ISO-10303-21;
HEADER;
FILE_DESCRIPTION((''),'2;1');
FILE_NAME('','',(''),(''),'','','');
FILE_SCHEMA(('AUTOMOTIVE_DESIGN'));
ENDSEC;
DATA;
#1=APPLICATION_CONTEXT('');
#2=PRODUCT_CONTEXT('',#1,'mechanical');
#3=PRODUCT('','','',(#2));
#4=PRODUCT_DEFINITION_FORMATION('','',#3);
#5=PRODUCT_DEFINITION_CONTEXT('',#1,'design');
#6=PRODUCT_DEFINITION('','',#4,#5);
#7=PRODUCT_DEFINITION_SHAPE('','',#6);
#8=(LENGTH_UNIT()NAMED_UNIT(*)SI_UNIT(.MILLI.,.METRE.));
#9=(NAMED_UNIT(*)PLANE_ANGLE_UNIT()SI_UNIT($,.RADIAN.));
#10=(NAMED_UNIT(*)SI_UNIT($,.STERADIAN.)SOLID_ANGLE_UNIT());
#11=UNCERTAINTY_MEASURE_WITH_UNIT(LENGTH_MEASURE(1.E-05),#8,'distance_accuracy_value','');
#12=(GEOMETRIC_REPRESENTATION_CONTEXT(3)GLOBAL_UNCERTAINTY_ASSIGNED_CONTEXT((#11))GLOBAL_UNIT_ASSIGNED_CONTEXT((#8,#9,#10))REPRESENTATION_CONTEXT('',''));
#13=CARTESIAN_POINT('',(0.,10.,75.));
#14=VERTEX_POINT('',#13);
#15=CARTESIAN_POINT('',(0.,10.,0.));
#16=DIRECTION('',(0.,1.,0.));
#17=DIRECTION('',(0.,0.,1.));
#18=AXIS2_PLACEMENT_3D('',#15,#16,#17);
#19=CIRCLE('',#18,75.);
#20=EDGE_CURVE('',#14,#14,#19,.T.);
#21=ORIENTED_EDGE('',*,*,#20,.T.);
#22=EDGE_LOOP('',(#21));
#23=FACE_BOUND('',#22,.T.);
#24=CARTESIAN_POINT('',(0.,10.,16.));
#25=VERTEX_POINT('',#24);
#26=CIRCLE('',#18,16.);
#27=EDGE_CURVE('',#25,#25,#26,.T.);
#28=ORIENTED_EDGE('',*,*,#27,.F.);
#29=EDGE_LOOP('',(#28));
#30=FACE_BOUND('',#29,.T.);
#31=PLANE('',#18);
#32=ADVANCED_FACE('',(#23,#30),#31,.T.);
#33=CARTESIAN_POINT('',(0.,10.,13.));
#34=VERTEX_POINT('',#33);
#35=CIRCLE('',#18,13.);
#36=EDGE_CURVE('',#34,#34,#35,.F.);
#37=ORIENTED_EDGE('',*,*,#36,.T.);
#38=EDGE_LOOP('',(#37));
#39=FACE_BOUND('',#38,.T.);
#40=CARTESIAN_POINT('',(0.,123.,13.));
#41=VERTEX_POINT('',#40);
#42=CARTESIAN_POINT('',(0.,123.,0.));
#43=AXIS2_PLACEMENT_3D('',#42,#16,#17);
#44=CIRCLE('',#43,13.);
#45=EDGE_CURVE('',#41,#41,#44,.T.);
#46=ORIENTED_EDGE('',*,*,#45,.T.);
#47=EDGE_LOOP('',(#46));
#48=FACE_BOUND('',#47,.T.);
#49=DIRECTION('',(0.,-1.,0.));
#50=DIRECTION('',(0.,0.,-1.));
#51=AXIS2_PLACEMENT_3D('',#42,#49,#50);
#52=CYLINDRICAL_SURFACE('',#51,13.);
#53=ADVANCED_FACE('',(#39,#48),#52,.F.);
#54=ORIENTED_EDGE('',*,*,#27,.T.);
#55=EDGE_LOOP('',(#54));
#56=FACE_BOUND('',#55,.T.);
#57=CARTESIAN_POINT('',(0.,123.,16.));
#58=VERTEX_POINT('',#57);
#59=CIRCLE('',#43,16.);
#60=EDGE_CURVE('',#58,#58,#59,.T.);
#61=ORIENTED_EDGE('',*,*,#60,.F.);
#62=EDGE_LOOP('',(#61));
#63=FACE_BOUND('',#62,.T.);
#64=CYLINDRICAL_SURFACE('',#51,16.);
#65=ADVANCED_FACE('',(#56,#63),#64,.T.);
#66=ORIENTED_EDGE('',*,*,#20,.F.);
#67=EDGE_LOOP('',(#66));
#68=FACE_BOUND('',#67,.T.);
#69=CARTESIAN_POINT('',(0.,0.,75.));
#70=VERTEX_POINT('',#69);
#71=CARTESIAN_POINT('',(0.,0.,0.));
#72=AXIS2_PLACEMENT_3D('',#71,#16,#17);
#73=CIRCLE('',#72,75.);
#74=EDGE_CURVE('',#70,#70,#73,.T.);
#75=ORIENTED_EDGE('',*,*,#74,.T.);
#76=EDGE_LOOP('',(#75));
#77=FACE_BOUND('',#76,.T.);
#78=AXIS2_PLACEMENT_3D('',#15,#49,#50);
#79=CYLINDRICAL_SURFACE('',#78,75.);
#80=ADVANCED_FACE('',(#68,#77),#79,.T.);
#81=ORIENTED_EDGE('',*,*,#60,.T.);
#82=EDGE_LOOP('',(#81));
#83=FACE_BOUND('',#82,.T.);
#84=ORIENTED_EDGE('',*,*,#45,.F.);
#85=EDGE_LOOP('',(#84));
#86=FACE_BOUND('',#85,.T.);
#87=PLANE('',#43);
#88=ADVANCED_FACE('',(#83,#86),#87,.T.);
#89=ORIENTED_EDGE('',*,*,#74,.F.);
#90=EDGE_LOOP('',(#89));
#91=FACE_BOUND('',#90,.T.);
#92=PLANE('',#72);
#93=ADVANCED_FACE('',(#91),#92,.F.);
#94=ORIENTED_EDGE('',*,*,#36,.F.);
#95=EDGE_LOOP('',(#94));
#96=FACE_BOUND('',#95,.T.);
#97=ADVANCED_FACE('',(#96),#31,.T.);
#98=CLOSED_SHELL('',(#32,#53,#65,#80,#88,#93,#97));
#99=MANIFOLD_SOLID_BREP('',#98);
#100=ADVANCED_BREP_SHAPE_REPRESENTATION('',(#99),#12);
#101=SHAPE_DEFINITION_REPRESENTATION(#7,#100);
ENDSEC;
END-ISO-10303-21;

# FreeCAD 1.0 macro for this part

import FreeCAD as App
import Part
import Sketcher

V = App.Vector
Q = App.Units.Quantity

doc = App.newDocument("Part")
body = doc.addObject("PartDesign::Body", "Body")

sketch1 = doc.addObject("Sketcher::SketchObject", "Sketch")
body.addObject(sketch1)
sketch1.AttachmentSupport = (doc.XZ_Plane, [""])
sketch1.MapMode = "FlatFace"
sketch1.addGeometry(Part.Circle(V(0, 0, 0), V(0, 0, 1), 75), False)
sketch1.addConstraint(Sketcher.Constraint("Coincident", 0, 3, -1, 1))
sketch1.addConstraint(Sketcher.Constraint("Diameter", 0, Q("150 mm")))
pad1 = doc.addObject("PartDesign::Pad", "Pad")
body.addObject(pad1)
pad1.Profile = sketch1
pad1.Length = 10
pad1.Reversed = True

sketch2 = doc.addObject("Sketcher::SketchObject", "Sketch001")
body.addObject(sketch2)
sketch2.AttachmentSupport = (doc.XZ_Plane, [""])
sketch2.MapMode = "FlatFace"
sketch2.AttachmentOffset = App.Placement(V(0, 0, -10), App.Rotation())
sketch2.addGeometry(Part.Circle(V(0, 0, 0), V(0, 0, 1), 16), False)
sketch2.addGeometry(Part.Circle(V(0, 0, 0), V(0, 0, 1), 13), False)
sketch2.addConstraint(Sketcher.Constraint("Coincident", 0, 3, -1, 1))
sketch2.addConstraint(Sketcher.Constraint("Coincident", 1, 3, -1, 1))
sketch2.addConstraint(Sketcher.Constraint("Diameter", 0, Q("32 mm")))
sketch2.addConstraint(Sketcher.Constraint("Diameter", 1, Q("26 mm")))
pad2 = doc.addObject("PartDesign::Pad", "Pad001")
body.addObject(pad2)
pad2.Profile = sketch2
pad2.Length = 113
pad2.Reversed = True

doc.recompute()
